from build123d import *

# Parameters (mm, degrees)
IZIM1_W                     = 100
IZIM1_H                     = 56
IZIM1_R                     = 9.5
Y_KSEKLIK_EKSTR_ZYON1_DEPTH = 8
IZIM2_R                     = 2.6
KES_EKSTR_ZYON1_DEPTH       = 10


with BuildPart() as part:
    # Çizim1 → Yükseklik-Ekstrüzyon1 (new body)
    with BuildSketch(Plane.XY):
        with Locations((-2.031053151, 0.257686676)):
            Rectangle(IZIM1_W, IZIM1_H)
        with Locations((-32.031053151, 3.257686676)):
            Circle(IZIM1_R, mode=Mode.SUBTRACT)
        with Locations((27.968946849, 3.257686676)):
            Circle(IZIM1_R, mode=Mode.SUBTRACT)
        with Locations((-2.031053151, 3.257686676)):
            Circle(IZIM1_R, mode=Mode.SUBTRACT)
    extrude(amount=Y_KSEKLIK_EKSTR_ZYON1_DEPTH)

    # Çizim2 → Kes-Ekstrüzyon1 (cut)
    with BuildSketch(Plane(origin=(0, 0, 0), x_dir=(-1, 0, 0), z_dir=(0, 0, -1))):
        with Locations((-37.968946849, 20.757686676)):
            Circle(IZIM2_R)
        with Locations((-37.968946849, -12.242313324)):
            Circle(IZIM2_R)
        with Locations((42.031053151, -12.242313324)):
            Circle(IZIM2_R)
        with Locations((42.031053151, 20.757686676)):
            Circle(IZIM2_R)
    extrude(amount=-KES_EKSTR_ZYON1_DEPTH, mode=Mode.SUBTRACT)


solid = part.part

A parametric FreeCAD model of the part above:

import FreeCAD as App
import Part
import Sketcher

V = App.Vector
Q = App.Units.Quantity

doc = App.newDocument("Part")
body = doc.addObject("PartDesign::Body", "Body")

sketch1 = body.newObject("Sketcher::SketchObject", "Sketch")
sketch1.AttachmentSupport = (doc.getObject("XY_Plane"), [""])
sketch1.MapMode = "FlatFace"
sketch1.addGeometry(Part.LineSegment(V(-52, 28, 0), V(-52, -28, 0)), False)
sketch1.addGeometry(Part.LineSegment(V(-52, -28, 0), V(48, -28, 0)), False)
sketch1.addGeometry(Part.LineSegment(V(48, -28, 0), V(48, 28, 0)), False)
sketch1.addGeometry(Part.LineSegment(V(48, 28, 0), V(-52, 28, 0)), False)
sketch1.addGeometry(Part.Circle(V(-32, 3, 0), V(0, 0, 1), 10), False)
sketch1.addGeometry(Part.Circle(V(-2, 3, 0), V(0, 0, 1), 10), False)
sketch1.addGeometry(Part.Circle(V(28, 3, 0), V(0, 0, 1), 10), False)
sketch1.addConstraint(Sketcher.Constraint("Coincident", 0, 2, 1, 1))
sketch1.addConstraint(Sketcher.Constraint("Coincident", 1, 2, 2, 1))
sketch1.addConstraint(Sketcher.Constraint("Coincident", 2, 2, 3, 1))
sketch1.addConstraint(Sketcher.Constraint("Coincident", 3, 2, 0, 1))
sketch1.addConstraint(Sketcher.Constraint("Vertical", 0))
sketch1.addConstraint(Sketcher.Constraint("Horizontal", 1))
sketch1.addConstraint(Sketcher.Constraint("Vertical", 2))
sketch1.addConstraint(Sketcher.Constraint("Horizontal", 3))
sketch1.addConstraint(Sketcher.Constraint("Equal", 4, 5))
sketch1.addConstraint(Sketcher.Constraint("Equal", 5, 6))
sketch1.addConstraint(Sketcher.Constraint("Horizontal", 4, 3, 5, 3))
sketch1.addConstraint(Sketcher.Constraint("Horizontal", 5, 3, 6, 3))
sketch1.addConstraint(Sketcher.Constraint("Diameter", 4, Q("19 mm")))
sketch1.addConstraint(Sketcher.Constraint("DistanceX", 1, 1, 1, 2, Q("100 mm")))
sketch1.addConstraint(Sketcher.Constraint("DistanceY", 0, 2, 0, 1, Q("56 mm")))
sketch1.addConstraint(Sketcher.Constraint("DistanceX", 4, 3, 5, 3, Q("30 mm")))
sketch1.addConstraint(Sketcher.Constraint("DistanceX", 5, 3, 6, 3, Q("30 mm")))
sketch1.addConstraint(Sketcher.Constraint("DistanceX", 0, 2, 4, 3, Q("20 mm")))
sketch1.addConstraint(Sketcher.Constraint("DistanceY", 0, 2, 4, 3, Q("31 mm")))
sketch1.addConstraint(Sketcher.Constraint("DistanceX", 4, 3, -1, 1, Q("32.031053 mm")))
sketch1.addConstraint(Sketcher.Constraint("DistanceY", -1, 1, 4, 3, Q("3.257687 mm")))
pad1 = body.newObject("PartDesign::Pad", "Pad")
pad1.Profile = sketch1
pad1.Length = 8

sketch2 = body.newObject("Sketcher::SketchObject", "Sketch001")
sketch2.AttachmentSupport = (doc.getObject("XY_Plane"), [""])
sketch2.MapMode = "FlatFace"
sketch2.addGeometry(Part.Circle(V(38, 20.8, 0), V(0, 0, 1), 2.6), False)
sketch2.addGeometry(Part.Circle(V(38, -12.2, 0), V(0, 0, 1), 2.6), False)
sketch2.addGeometry(Part.Circle(V(-42, -12.2, 0), V(0, 0, 1), 2.6), False)
sketch2.addGeometry(Part.Circle(V(-42, 20.8, 0), V(0, 0, 1), 2.6), False)
sketch2.addConstraint(Sketcher.Constraint("Equal", 0, 1))
sketch2.addConstraint(Sketcher.Constraint("Equal", 1, 2))
sketch2.addConstraint(Sketcher.Constraint("Equal", 2, 3))
sketch2.addConstraint(Sketcher.Constraint("Horizontal", 1, 3, 2, 3))
sketch2.addConstraint(Sketcher.Constraint("Horizontal", 0, 3, 3, 3))
sketch2.addConstraint(Sketcher.Constraint("Vertical", 0, 3, 1, 3))
sketch2.addConstraint(Sketcher.Constraint("Vertical", 2, 3, 3, 3))
sketch2.addConstraint(Sketcher.Constraint("Diameter", 0, Q("5.2 mm")))
sketch2.addConstraint(Sketcher.Constraint("DistanceY", 1, 3, 0, 3, Q("33 mm")))
sketch2.addConstraint(Sketcher.Constraint("DistanceX", 2, 3, 1, 3, Q("80 mm")))
sketch2.addConstraint(Sketcher.Constraint("DistanceX", -1, 1, 0, 3, Q("37.968947 mm")))
sketch2.addConstraint(Sketcher.Constraint("DistanceY", -1, 1, 0, 3, Q("20.757687 mm")))
pocket1 = body.newObject("PartDesign::Pocket", "Pocket")
pocket1.Profile = sketch2
pocket1.Length = 10
pocket1.Reversed = True

doc.recompute()
